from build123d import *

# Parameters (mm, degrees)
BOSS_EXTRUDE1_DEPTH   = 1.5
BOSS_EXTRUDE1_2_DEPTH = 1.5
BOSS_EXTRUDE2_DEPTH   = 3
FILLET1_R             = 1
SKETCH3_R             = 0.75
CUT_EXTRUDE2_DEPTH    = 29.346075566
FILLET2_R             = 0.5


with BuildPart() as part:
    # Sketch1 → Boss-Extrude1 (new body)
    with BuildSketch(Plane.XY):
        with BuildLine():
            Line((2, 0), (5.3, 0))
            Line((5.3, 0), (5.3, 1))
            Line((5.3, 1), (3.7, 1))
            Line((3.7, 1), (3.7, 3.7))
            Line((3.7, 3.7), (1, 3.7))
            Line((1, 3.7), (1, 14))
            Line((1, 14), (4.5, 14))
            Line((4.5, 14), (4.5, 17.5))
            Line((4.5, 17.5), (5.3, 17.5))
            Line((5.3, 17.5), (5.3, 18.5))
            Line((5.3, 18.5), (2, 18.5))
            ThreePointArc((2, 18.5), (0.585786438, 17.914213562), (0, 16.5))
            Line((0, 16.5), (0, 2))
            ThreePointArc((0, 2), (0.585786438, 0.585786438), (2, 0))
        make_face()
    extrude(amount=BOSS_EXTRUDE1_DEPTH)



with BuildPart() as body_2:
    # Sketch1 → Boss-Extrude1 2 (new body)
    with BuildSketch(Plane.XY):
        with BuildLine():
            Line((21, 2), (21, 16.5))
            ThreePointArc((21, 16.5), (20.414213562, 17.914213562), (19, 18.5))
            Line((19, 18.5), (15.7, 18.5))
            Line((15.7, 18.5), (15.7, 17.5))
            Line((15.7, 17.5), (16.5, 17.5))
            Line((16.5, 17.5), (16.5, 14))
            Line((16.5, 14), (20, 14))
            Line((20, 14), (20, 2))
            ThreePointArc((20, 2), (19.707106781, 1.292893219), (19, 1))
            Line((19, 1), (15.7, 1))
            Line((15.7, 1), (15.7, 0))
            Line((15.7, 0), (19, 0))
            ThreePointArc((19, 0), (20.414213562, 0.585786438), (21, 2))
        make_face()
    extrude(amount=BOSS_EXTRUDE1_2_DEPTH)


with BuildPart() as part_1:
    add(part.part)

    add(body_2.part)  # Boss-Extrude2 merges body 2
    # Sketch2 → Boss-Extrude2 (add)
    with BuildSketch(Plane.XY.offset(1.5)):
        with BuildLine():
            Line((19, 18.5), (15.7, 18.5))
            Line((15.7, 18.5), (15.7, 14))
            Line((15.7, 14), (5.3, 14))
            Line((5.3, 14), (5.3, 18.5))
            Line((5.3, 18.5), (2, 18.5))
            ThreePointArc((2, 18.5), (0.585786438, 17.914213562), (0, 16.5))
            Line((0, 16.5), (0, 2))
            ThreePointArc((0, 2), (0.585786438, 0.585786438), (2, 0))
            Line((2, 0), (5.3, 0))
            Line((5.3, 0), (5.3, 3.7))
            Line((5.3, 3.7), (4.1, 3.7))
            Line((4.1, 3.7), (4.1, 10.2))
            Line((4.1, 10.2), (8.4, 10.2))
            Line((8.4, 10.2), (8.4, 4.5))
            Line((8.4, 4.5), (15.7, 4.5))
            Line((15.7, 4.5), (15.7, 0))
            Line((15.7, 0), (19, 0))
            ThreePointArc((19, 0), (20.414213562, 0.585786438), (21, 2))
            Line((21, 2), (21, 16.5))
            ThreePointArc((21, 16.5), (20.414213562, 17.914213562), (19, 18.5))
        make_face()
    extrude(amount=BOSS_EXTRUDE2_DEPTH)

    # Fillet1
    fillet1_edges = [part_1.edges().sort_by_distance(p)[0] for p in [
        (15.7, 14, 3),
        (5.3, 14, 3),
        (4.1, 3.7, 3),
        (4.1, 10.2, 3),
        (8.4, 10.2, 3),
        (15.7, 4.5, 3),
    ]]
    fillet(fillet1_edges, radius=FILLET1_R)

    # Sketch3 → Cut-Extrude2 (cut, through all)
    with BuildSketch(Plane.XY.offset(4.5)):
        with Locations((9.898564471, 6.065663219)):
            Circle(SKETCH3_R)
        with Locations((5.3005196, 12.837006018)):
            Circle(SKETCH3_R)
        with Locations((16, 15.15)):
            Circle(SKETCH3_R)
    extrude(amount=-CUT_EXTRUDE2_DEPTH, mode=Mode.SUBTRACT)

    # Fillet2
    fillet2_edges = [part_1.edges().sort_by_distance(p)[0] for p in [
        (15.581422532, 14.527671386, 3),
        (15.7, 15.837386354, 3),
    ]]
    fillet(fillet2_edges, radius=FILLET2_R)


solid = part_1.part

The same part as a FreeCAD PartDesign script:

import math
import FreeCAD as App
import Part
import Sketcher

V = App.Vector
Q = App.Units.Quantity


def edges_at(feature, points):
    """Names of the edges that pass closest to the given points."""
    edges = feature.Shape.Edges
    near = lambda p: min(range(len(edges)), key=lambda i: edges[i].distToShape(Part.Vertex(*p))[0])
    return sorted({f"Edge{near(p) + 1}" for p in points})

doc = App.newDocument("Part")
body = doc.addObject("PartDesign::Body", "Body")

# Sketch on XY plane
sketch1 = doc.addObject("Sketcher::SketchObject", "Sketch")
body.addObject(sketch1)
sketch1.AttachmentSupport = (doc.XY_Plane, [""])
sketch1.MapMode = "FlatFace"
sketch1.addGeometry([
    Part.LineSegment(V(2, 0, 0), V(5.3, 0, 0)),  # 0
    Part.LineSegment(V(5.3, 0, 0), V(5.3, 1, 0)),  # 1
    Part.LineSegment(V(5.3, 1, 0), V(3.7, 1, 0)),  # 2
    Part.LineSegment(V(3.7, 1, 0), V(3.7, 3.7, 0)),  # 3
    Part.LineSegment(V(3.7, 3.7, 0), V(1, 3.7, 0)),  # 4
    Part.LineSegment(V(1, 3.7, 0), V(1, 14, 0)),  # 5
    Part.LineSegment(V(1, 14, 0), V(4.5, 14, 0)),  # 6
    Part.LineSegment(V(4.5, 14, 0), V(4.5, 17.5, 0)),  # 7
    Part.LineSegment(V(4.5, 17.5, 0), V(5.3, 17.5, 0)),  # 8
    Part.LineSegment(V(5.3, 17.5, 0), V(5.3, 18.5, 0)),  # 9
    Part.LineSegment(V(5.3, 18.5, 0), V(2, 18.5, 0)),  # 10
    Part.ArcOfCircle(Part.Circle(V(2, 16.5, 0), V(0, 0, 1), 2), math.radians(90), math.radians(180)),  # 11
    Part.LineSegment(V(0, 16.5, 0), V(0, 2, 0)),  # 12
    Part.ArcOfCircle(Part.Circle(V(2, 2, 0), V(0, 0, 1), 2), math.radians(-180), math.radians(-90)),  # 13
], False)
sketch1.addConstraint([
    Sketcher.Constraint("Coincident", 0, 2, 1, 1),
    Sketcher.Constraint("Coincident", 1, 2, 2, 1),
    Sketcher.Constraint("Coincident", 2, 2, 3, 1),
    Sketcher.Constraint("Coincident", 3, 2, 4, 1),
    Sketcher.Constraint("Coincident", 4, 2, 5, 1),
    Sketcher.Constraint("Coincident", 5, 2, 6, 1),
    Sketcher.Constraint("Coincident", 6, 2, 7, 1),
    Sketcher.Constraint("Coincident", 7, 2, 8, 1),
    Sketcher.Constraint("Coincident", 8, 2, 9, 1),
    Sketcher.Constraint("Coincident", 9, 2, 10, 1),
    Sketcher.Constraint("Tangent", 10, 2, 11, 1),
    Sketcher.Constraint("Tangent", 11, 2, 12, 1),
    Sketcher.Constraint("Tangent", 12, 2, 13, 1),
    Sketcher.Constraint("Tangent", 13, 2, 0, 1),
    Sketcher.Constraint("Horizontal", 0),
    Sketcher.Constraint("Vertical", 1),
    Sketcher.Constraint("Horizontal", 2),
    Sketcher.Constraint("Vertical", 3),
    Sketcher.Constraint("Horizontal", 4),
    Sketcher.Constraint("Vertical", 5),
    Sketcher.Constraint("Horizontal", 6),
    Sketcher.Constraint("Vertical", 7),
    Sketcher.Constraint("Horizontal", 8),
    Sketcher.Constraint("Vertical", 9),
    Sketcher.Constraint("Horizontal", 10),
    Sketcher.Constraint("Vertical", 12),
    Sketcher.Constraint("Equal", 11, 13),
    Sketcher.Constraint("PointOnObject", 0, 2, -1),
    Sketcher.Constraint("PointOnObject", 11, 2, -2),
    Sketcher.Constraint("Vertical", 1, 2, 8, 2),
    Sketcher.Constraint("Equal", 4, 3),
    Sketcher.Constraint("Equal", 6, 7),
    Sketcher.Constraint("Equal", 1, 9),
    Sketcher.Constraint("Radius", 11, Q("2 mm")),
    Sketcher.Constraint("DistanceY", 1, 1, 1, 2, Q("1 mm")),
    Sketcher.Constraint("DistanceX", 0, 1, 0, 2, Q("3.3 mm")),
    Sketcher.Constraint("DistanceX", 2, 2, 2, 1, Q("1.6 mm")),
    Sketcher.Constraint("DistanceX", 4, 2, 4, 1, Q("2.7 mm")),
    Sketcher.Constraint("DistanceX", 6, 1, 6, 2, Q("3.5 mm")),
    Sketcher.Constraint("DistanceY", 5, 1, 5, 2, Q("10.3 mm")),
])
pad1 = doc.addObject("PartDesign::Pad", "Pad")
body.addObject(pad1)
pad1.Profile = sketch1
pad1.Length = 1.5
body2 = doc.addObject("PartDesign::Body", "Body001")

# Sketch on XY plane
sketch2 = doc.addObject("Sketcher::SketchObject", "Sketch001")
body2.addObject(sketch2)
sketch2.AttachmentSupport = (doc.getObject("XY_Plane001"), [""])
sketch2.MapMode = "FlatFace"
sketch2.addGeometry([
    Part.LineSegment(V(21, 2, 0), V(21, 16.5, 0)),  # 0
    Part.ArcOfCircle(Part.Circle(V(19, 16.5, 0), V(0, 0, 1), 2), math.radians(0), math.radians(90)),  # 1
    Part.LineSegment(V(19, 18.5, 0), V(15.7, 18.5, 0)),  # 2
    Part.LineSegment(V(15.7, 18.5, 0), V(15.7, 17.5, 0)),  # 3
    Part.LineSegment(V(15.7, 17.5, 0), V(16.5, 17.5, 0)),  # 4
    Part.LineSegment(V(16.5, 17.5, 0), V(16.5, 14, 0)),  # 5
    Part.LineSegment(V(16.5, 14, 0), V(20, 14, 0)),  # 6
    Part.LineSegment(V(20, 14, 0), V(20, 2, 0)),  # 7
    Part.ArcOfCircle(Part.Circle(V(19, 2, 0), V(0, 0, 1), 1), math.radians(-90), math.radians(0)),  # 8
    Part.LineSegment(V(19, 1, 0), V(15.7, 1, 0)),  # 9
    Part.LineSegment(V(15.7, 1, 0), V(15.7, 0, 0)),  # 10
    Part.LineSegment(V(15.7, 0, 0), V(19, 0, 0)),  # 11
    Part.ArcOfCircle(Part.Circle(V(19, 2, 0), V(0, 0, 1), 2), math.radians(-90), math.radians(0)),  # 12
], False)
sketch2.addConstraint([
    Sketcher.Constraint("Tangent", 0, 2, 1, 1),
    Sketcher.Constraint("Tangent", 1, 2, 2, 1),
    Sketcher.Constraint("Coincident", 2, 2, 3, 1),
    Sketcher.Constraint("Coincident", 3, 2, 4, 1),
    Sketcher.Constraint("Coincident", 4, 2, 5, 1),
    Sketcher.Constraint("Coincident", 5, 2, 6, 1),
    Sketcher.Constraint("Coincident", 6, 2, 7, 1),
    Sketcher.Constraint("Tangent", 7, 2, 8, 2),
    Sketcher.Constraint("Tangent", 8, 1, 9, 1),
    Sketcher.Constraint("Coincident", 9, 2, 10, 1),
    Sketcher.Constraint("Coincident", 10, 2, 11, 1),
    Sketcher.Constraint("Tangent", 11, 2, 12, 1),
    Sketcher.Constraint("Tangent", 12, 2, 0, 1),
    Sketcher.Constraint("Vertical", 0),
    Sketcher.Constraint("Horizontal", 2),
    Sketcher.Constraint("Vertical", 3),
    Sketcher.Constraint("Horizontal", 4),
    Sketcher.Constraint("Vertical", 5),
    Sketcher.Constraint("Horizontal", 6),
    Sketcher.Constraint("Vertical", 7),
    Sketcher.Constraint("Horizontal", 9),
    Sketcher.Constraint("Vertical", 10),
    Sketcher.Constraint("Horizontal", 11),
    Sketcher.Constraint("Coincident", 12, 3, 8, 3),
    Sketcher.Constraint("Equal", 1, 12),
    Sketcher.Constraint("PointOnObject", 10, 2, -1),
    Sketcher.Constraint("Vertical", 3, 2, 9, 2),
    Sketcher.Constraint("Equal", 6, 5),
    Sketcher.Constraint("Equal", 3, 10),
    Sketcher.Constraint("Radius", 1, Q("2 mm")),
    Sketcher.Constraint("Radius", 8, Q("1 mm")),
    Sketcher.Constraint("DistanceY", 7, 2, 7, 1, Q("12 mm")),
    Sketcher.Constraint("DistanceX", 2, 2, 2, 1, Q("3.3 mm")),
    Sketcher.Constraint("DistanceX", 4, 1, 4, 2, Q("0.8 mm")),
    Sketcher.Constraint("DistanceX", -1, 1, 1, 3, Q("19 mm")),
])
pad2 = doc.addObject("PartDesign::Pad", "Pad001")
body2.addObject(pad2)
pad2.Profile = sketch2
pad2.Length = 1.5
body.AllowCompound = True
doc.recompute()

boolean = doc.addObject("PartDesign::Boolean", "Boolean")
body.addObject(boolean)
boolean.Type = "Fuse"
boolean.addObjects([body2])

# Sketch on XY plane
sketch3 = doc.addObject("Sketcher::SketchObject", "Sketch002")
body.addObject(sketch3)
sketch3.AttachmentSupport = (doc.XY_Plane, [""])
sketch3.MapMode = "FlatFace"
sketch3.AttachmentOffset = App.Placement(V(0, 0, 1.5), App.Rotation())
sketch3.addGeometry([
    Part.LineSegment(V(19, 18.5, 0), V(15.7, 18.5, 0)),  # 0
    Part.LineSegment(V(15.7, 18.5, 0), V(15.7, 14, 0)),  # 1
    Part.LineSegment(V(15.7, 14, 0), V(5.3, 14, 0)),  # 2
    Part.LineSegment(V(5.3, 14, 0), V(5.3, 18.5, 0)),  # 3
    Part.LineSegment(V(5.3, 18.5, 0), V(2, 18.5, 0)),  # 4
    Part.ArcOfCircle(Part.Circle(V(2, 16.5, 0), V(0, 0, 1), 2), math.radians(90), math.radians(180)),  # 5
    Part.LineSegment(V(0, 16.5, 0), V(0, 2, 0)),  # 6
    Part.ArcOfCircle(Part.Circle(V(2, 2, 0), V(0, 0, 1), 2), math.radians(-180), math.radians(-90)),  # 7
    Part.LineSegment(V(2, 0, 0), V(5.3, 0, 0)),  # 8
    Part.LineSegment(V(5.3, 0, 0), V(5.3, 3.7, 0)),  # 9
    Part.LineSegment(V(5.3, 3.7, 0), V(4.1, 3.7, 0)),  # 10
    Part.LineSegment(V(4.1, 3.7, 0), V(4.1, 10.2, 0)),  # 11
    Part.LineSegment(V(4.1, 10.2, 0), V(8.4, 10.2, 0)),  # 12
    Part.LineSegment(V(8.4, 10.2, 0), V(8.4, 4.5, 0)),  # 13
    Part.LineSegment(V(8.4, 4.5, 0), V(15.7, 4.5, 0)),  # 14
    Part.LineSegment(V(15.7, 4.5, 0), V(15.7, 0, 0)),  # 15
    Part.LineSegment(V(15.7, 0, 0), V(19, 0, 0)),  # 16
    Part.ArcOfCircle(Part.Circle(V(19, 2, 0), V(0, 0, 1), 2), math.radians(-90), math.radians(0)),  # 17
    Part.LineSegment(V(21, 2, 0), V(21, 16.5, 0)),  # 18
    Part.ArcOfCircle(Part.Circle(V(19, 16.5, 0), V(0, 0, 1), 2), math.radians(0), math.radians(90)),  # 19
], False)
sketch3.addConstraint([
    Sketcher.Constraint("Coincident", 0, 2, 1, 1),
    Sketcher.Constraint("Coincident", 1, 2, 2, 1),
    Sketcher.Constraint("Coincident", 2, 2, 3, 1),
    Sketcher.Constraint("Coincident", 3, 2, 4, 1),
    Sketcher.Constraint("Tangent", 4, 2, 5, 1),
    Sketcher.Constraint("Tangent", 5, 2, 6, 1),
    Sketcher.Constraint("Tangent", 6, 2, 7, 1),
    Sketcher.Constraint("Tangent", 7, 2, 8, 1),
    Sketcher.Constraint("Coincident", 8, 2, 9, 1),
    Sketcher.Constraint("Coincident", 9, 2, 10, 1),
    Sketcher.Constraint("Coincident", 10, 2, 11, 1),
    Sketcher.Constraint("Coincident", 11, 2, 12, 1),
    Sketcher.Constraint("Coincident", 12, 2, 13, 1),
    Sketcher.Constraint("Coincident", 13, 2, 14, 1),
    Sketcher.Constraint("Coincident", 14, 2, 15, 1),
    Sketcher.Constraint("Coincident", 15, 2, 16, 1),
    Sketcher.Constraint("Tangent", 16, 2, 17, 1),
    Sketcher.Constraint("Tangent", 17, 2, 18, 1),
    Sketcher.Constraint("Tangent", 18, 2, 19, 1),
    Sketcher.Constraint("Tangent", 19, 2, 0, 1),
    Sketcher.Constraint("Horizontal", 0),
    Sketcher.Constraint("Vertical", 1),
    Sketcher.Constraint("Horizontal", 2),
    Sketcher.Constraint("Vertical", 3),
    Sketcher.Constraint("Horizontal", 4),
    Sketcher.Constraint("Vertical", 6),
    Sketcher.Constraint("Horizontal", 8),
    Sketcher.Constraint("Vertical", 9),
    Sketcher.Constraint("Horizontal", 10),
    Sketcher.Constraint("Vertical", 11),
    Sketcher.Constraint("Horizontal", 12),
    Sketcher.Constraint("Vertical", 13),
    Sketcher.Constraint("Horizontal", 14),
    Sketcher.Constraint("Vertical", 15),
    Sketcher.Constraint("Horizontal", 16),
    Sketcher.Constraint("Vertical", 18),
    Sketcher.Constraint("Equal", 5, 7),
    Sketcher.Constraint("Equal", 7, 17),
    Sketcher.Constraint("Equal", 17, 19),
    Sketcher.Constraint("PointOnObject", 5, 2, -2),
    Sketcher.Constraint("PointOnObject", 7, 2, -1),
    Sketcher.Constraint("PointOnObject", 15, 2, -1),
    Sketcher.Constraint("Horizontal", 5, 3, 19, 3),
    Sketcher.Constraint("Vertical", 3, 2, 8, 2),
    Sketcher.Constraint("Vertical", 1, 2, 14, 2),
    Sketcher.Constraint("Equal", 0, 4),
    Sketcher.Constraint("Equal", 3, 15),
    Sketcher.Constraint("Radius", 5, Q("2 mm")),
    Sketcher.Constraint("DistanceX", 0, 2, 0, 1, Q("3.3 mm")),
    Sketcher.Constraint("DistanceX", 2, 2, 2, 1, Q("10.4 mm")),
    Sketcher.Constraint("DistanceX", 10, 2, 10, 1, Q("1.2 mm")),
    Sketcher.Constraint("DistanceX", 12, 1, 12, 2, Q("4.3 mm")),
    Sketcher.Constraint("DistanceY", 1, 2, 1, 1, Q("4.5 mm")),
    Sketcher.Constraint("DistanceY", 6, 2, 6, 1, Q("14.5 mm")),
    Sketcher.Constraint("DistanceY", 9, 1, 9, 2, Q("3.7 mm")),
    Sketcher.Constraint("DistanceY", 11, 1, 11, 2, Q("6.5 mm")),
])
pad3 = doc.addObject("PartDesign::Pad", "Pad002")
body.addObject(pad3)
pad3.Profile = sketch3
pad3.Length = 3
doc.recompute()

fillet = doc.addObject("PartDesign::Fillet", "Fillet")
body.addObject(fillet)
fillet.Base = (pad3, edges_at(pad3, [
    (15.7, 14, 3),
    (5.3, 14, 3),
    (4.1, 3.7, 3),
    (4.1, 10.2, 3),
    (8.4, 10.2, 3),
    (15.7, 4.5, 3),
]))
fillet.Radius = 1

# Sketch on XY plane
sketch4 = doc.addObject("Sketcher::SketchObject", "Sketch003")
body.addObject(sketch4)
sketch4.AttachmentSupport = (doc.XY_Plane, [""])
sketch4.MapMode = "FlatFace"
sketch4.AttachmentOffset = App.Placement(V(0, 0, 4.5), App.Rotation())
sketch4.addGeometry([
    Part.Circle(V(9.9, 6.1, 0), V(0, 0, 1), 0.8),
    Part.Circle(V(5.3, 12.8, 0), V(0, 0, 1), 0.8),
    Part.Circle(V(16, 15.2, 0), V(0, 0, 1), 0.8),
], False)
sketch4.addConstraint([
    Sketcher.Constraint("Equal", 0, 1),
    Sketcher.Constraint("Equal", 1, 2),
    Sketcher.Constraint("Diameter", 0, Q("1.5 mm")),
    Sketcher.Constraint("DistanceX", -1, 1, 2, 3, Q("16 mm")),
    Sketcher.Constraint("DistanceY", -1, 1, 2, 3, Q("15.15 mm")),
    Sketcher.Constraint("DistanceX", -1, 1, 1, 3, Q("5.30052 mm")),
    Sketcher.Constraint("DistanceX", -1, 1, 0, 3, Q("9.898564 mm")),
    Sketcher.Constraint("DistanceY", -1, 1, 0, 3, Q("6.065663 mm")),
    Sketcher.Constraint("DistanceY", -1, 1, 1, 3, Q("12.837006 mm")),
])
pocket1 = doc.addObject("PartDesign::Pocket", "Pocket")
body.addObject(pocket1)
pocket1.Profile = sketch4
pocket1.Type = "ThroughAll"
doc.recompute()

fillet2 = doc.addObject("PartDesign::Fillet", "Fillet001")
body.addObject(fillet2)
fillet2.Base = (pocket1, edges_at(pocket1, [(15.581, 14.528, 3), (15.7, 15.837, 3)]))
fillet2.Radius = 0.5

doc.recompute()
